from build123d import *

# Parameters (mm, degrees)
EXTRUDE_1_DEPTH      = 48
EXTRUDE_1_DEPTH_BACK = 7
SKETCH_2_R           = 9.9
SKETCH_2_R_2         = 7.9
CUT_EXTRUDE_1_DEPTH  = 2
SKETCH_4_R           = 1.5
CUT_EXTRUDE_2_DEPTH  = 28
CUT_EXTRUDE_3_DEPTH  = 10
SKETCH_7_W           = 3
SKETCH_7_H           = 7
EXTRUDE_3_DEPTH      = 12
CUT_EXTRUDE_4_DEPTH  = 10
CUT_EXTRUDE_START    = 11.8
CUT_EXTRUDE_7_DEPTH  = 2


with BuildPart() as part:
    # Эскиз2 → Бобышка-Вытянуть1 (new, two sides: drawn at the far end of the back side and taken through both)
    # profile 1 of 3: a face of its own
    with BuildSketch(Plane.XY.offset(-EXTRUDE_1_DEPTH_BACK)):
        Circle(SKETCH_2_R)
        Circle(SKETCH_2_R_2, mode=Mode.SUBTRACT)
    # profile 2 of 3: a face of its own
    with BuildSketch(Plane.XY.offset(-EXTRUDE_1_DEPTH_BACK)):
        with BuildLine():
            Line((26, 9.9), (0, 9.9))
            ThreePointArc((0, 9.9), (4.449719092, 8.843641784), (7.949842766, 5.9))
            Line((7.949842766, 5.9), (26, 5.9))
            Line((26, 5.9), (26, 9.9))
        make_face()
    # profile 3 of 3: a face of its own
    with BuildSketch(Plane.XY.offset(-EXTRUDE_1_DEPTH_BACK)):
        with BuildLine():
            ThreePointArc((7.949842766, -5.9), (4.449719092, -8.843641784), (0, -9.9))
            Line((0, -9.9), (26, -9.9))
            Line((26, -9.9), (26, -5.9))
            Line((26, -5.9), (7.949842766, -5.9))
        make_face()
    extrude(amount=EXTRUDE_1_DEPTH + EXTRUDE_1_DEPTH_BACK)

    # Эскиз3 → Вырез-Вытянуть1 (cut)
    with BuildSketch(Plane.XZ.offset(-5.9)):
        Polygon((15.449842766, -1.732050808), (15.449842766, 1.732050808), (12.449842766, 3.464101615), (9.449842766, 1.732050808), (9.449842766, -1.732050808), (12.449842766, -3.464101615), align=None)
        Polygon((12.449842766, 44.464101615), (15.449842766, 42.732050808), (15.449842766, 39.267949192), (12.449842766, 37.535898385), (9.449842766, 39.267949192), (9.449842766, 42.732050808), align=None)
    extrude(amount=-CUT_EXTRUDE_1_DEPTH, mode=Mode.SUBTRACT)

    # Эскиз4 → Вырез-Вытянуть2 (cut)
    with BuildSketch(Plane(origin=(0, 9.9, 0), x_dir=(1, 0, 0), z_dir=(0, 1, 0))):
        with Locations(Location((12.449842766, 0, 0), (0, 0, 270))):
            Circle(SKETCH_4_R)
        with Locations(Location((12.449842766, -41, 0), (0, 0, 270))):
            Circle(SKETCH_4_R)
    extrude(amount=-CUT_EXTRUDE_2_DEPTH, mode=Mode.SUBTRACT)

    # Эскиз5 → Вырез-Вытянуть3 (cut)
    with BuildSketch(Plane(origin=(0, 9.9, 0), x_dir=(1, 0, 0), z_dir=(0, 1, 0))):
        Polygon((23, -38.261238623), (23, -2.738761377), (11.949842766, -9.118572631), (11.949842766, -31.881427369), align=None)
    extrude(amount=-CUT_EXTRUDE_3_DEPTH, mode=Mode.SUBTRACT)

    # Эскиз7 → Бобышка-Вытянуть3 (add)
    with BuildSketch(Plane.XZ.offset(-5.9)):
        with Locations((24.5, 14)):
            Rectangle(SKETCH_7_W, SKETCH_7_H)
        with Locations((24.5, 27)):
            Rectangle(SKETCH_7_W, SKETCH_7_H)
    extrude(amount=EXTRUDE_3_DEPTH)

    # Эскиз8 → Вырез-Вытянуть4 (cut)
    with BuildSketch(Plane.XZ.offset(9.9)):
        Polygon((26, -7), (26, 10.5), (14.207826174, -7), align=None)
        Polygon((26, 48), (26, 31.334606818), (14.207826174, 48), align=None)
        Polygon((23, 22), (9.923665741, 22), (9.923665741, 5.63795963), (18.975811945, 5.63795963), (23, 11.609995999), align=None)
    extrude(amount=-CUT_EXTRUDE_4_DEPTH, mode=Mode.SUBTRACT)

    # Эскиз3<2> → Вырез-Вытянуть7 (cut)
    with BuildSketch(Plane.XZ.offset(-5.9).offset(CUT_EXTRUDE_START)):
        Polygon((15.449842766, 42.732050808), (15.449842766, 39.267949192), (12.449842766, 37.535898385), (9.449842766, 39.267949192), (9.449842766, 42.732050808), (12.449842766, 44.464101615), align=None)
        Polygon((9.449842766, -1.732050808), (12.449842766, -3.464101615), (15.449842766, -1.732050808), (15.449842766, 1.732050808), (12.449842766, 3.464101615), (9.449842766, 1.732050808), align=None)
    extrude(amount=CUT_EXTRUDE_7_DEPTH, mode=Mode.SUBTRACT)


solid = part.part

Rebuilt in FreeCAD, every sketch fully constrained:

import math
import FreeCAD as App
import Part
import Sketcher

V = App.Vector
Q = App.Units.Quantity


def add_polygon(sketch, points):
    """Adds a closed chain of lines whose ends are joined by coincident constraints."""
    first, n = sketch.GeometryCount, len(points)
    for a, b in zip(points, points[1:] + points[:1]):
        sketch.addGeometry(Part.LineSegment(App.Vector(*a, 0), App.Vector(*b, 0)), False)
    for i in range(n):
        sketch.addConstraint(Sketcher.Constraint("Coincident", first + i, 2, first + (i + 1) % n, 1))

doc = App.newDocument("Part")
body = doc.addObject("PartDesign::Body", "Body")

# Sketch on XY plane
sketch1 = doc.addObject("Sketcher::SketchObject", "Sketch")
body.addObject(sketch1)
sketch1.AttachmentSupport = (doc.XY_Plane, [""])
sketch1.MapMode = "FlatFace"
sketch1.addGeometry(Part.LineSegment(V(7.9, 5.9, 0), V(26, 5.9, 0)), False)
sketch1.addGeometry(Part.LineSegment(V(26, 5.9, 0), V(26, 9.9, 0)), False)
sketch1.addGeometry(Part.LineSegment(V(26, 9.9, 0), V(0, 9.9, 0)), False)
sketch1.addGeometry(Part.ArcOfCircle(Part.Circle(V(0, 0, 0), V(0, 0, 1), 9.9), math.radians(90), math.radians(270)), False)
sketch1.addGeometry(Part.LineSegment(V(0, -9.9, 0), V(26, -9.9, 0)), False)
sketch1.addGeometry(Part.LineSegment(V(26, -9.9, 0), V(26, -5.9, 0)), False)
sketch1.addGeometry(Part.LineSegment(V(26, -5.9, 0), V(7.9, -5.9, 0)), False)
sketch1.addGeometry(Part.ArcOfCircle(Part.Circle(V(0, 0, 0), V(0, 0, 1), 9.9), math.radians(-37), math.radians(37)), False)
sketch1.addGeometry(Part.Circle(V(0, 0, 0), V(0, 0, 1), 7.9), False)
sketch1.addConstraint(Sketcher.Constraint("Coincident", 0, 2, 1, 1))
sketch1.addConstraint(Sketcher.Constraint("Coincident", 1, 2, 2, 1))
sketch1.addConstraint(Sketcher.Constraint("Tangent", 2, 2, 3, 1))
sketch1.addConstraint(Sketcher.Constraint("Tangent", 3, 2, 4, 1))
sketch1.addConstraint(Sketcher.Constraint("Coincident", 4, 2, 5, 1))
sketch1.addConstraint(Sketcher.Constraint("Coincident", 5, 2, 6, 1))
sketch1.addConstraint(Sketcher.Constraint("Coincident", 6, 2, 7, 1))
sketch1.addConstraint(Sketcher.Constraint("Coincident", 7, 2, 0, 1))
sketch1.addConstraint(Sketcher.Constraint("Horizontal", 0))
sketch1.addConstraint(Sketcher.Constraint("Vertical", 1))
sketch1.addConstraint(Sketcher.Constraint("Horizontal", 2))
sketch1.addConstraint(Sketcher.Constraint("Horizontal", 4))
sketch1.addConstraint(Sketcher.Constraint("Vertical", 5))
sketch1.addConstraint(Sketcher.Constraint("Horizontal", 6))
sketch1.addConstraint(Sketcher.Constraint("Coincident", 3, 3, -1, 1))
sketch1.addConstraint(Sketcher.Constraint("Coincident", 7, 3, -1, 1))
sketch1.addConstraint(Sketcher.Constraint("Coincident", 8, 3, -1, 1))
sketch1.addConstraint(Sketcher.Constraint("Equal", 3, 7))
sketch1.addConstraint(Sketcher.Constraint("Symmetric", 0, 2, 5, 2, -1))
sketch1.addConstraint(Sketcher.Constraint("Diameter", 8, 15.8))
sketch1.addConstraint(Sketcher.Constraint("Radius", 3, 9.9))
sketch1.addConstraint(Sketcher.Constraint("DistanceX", 2, 2, 2, 1, 26.0))
sketch1.addConstraint(Sketcher.Constraint("DistanceY", 1, 1, 1, 2, 4.0))
pad1 = doc.addObject("PartDesign::Pad", "Pad")
body.addObject(pad1)
pad1.Profile = sketch1
pad1.Type = "TwoLengths"
pad1.Length = 48
pad1.Length2 = 7

# Sketch on XZ plane
sketch2 = doc.addObject("Sketcher::SketchObject", "Sketch001")
body.addObject(sketch2)
sketch2.AttachmentSupport = (doc.XZ_Plane, [""])
sketch2.MapMode = "FlatFace"
sketch2.AttachmentOffset = App.Placement(V(0, 0, -5.9), App.Rotation())
add_polygon(sketch2, [(15.4, -1.7), (15.4, 1.7), (12.4, 3.5), (9.4, 1.7), (9.4, -1.7), (12.4, -3.5)])  # lines 0-5
add_polygon(sketch2, [(15.4, 42.7), (12.4, 44.5), (9.4, 42.7), (9.4, 39.3), (12.4, 37.5), (15.4, 39.3)])  # lines 6-11
sketch2.addConstraint(Sketcher.Constraint("Vertical", 0))
sketch2.addConstraint(Sketcher.Constraint("Vertical", 3))
sketch2.addConstraint(Sketcher.Constraint("Vertical", 8))
sketch2.addConstraint(Sketcher.Constraint("Vertical", 11))
sketch2.addConstraint(Sketcher.Constraint("Symmetric", 1, 2, 4, 2, -1))
sketch2.addConstraint(Sketcher.Constraint("Parallel", 1, 4))
sketch2.addConstraint(Sketcher.Constraint("Parallel", 2, 5))
sketch2.addConstraint(Sketcher.Constraint("Parallel", 4, 6))
sketch2.addConstraint(Sketcher.Constraint("Parallel", 5, 7))
sketch2.addConstraint(Sketcher.Constraint("Parallel", 6, 9))
sketch2.addConstraint(Sketcher.Constraint("Parallel", 7, 10))
sketch2.addConstraint(Sketcher.Constraint("Horizontal", 0, 2, 2, 2))
sketch2.addConstraint(Sketcher.Constraint("Horizontal", 3, 2, 5, 2))
sketch2.addConstraint(Sketcher.Constraint("Horizontal", 8, 2, 10, 2))
sketch2.addConstraint(Sketcher.Constraint("Horizontal", 7, 2, 11, 2))
sketch2.addConstraint(Sketcher.Constraint("Vertical", 4, 2, 6, 2))
sketch2.addConstraint(Sketcher.Constraint("Vertical", 3, 2, 7, 2))
sketch2.addConstraint(Sketcher.Constraint("Equal", 3, 8))
sketch2.addConstraint(Sketcher.Constraint("Angle", 1, Q("150 deg")))
sketch2.addConstraint(Sketcher.Constraint("DistanceX", 1, 2, 0, 2, 3.0))
sketch2.addConstraint(Sketcher.Constraint("DistanceY", 1, 2, 6, 2, 41.0))
sketch2.addConstraint(Sketcher.Constraint("DistanceY", 0, 1, 0, 2, 3.464102))
sketch2.addConstraint(Sketcher.Constraint("DistanceX", -1, 1, 0, 2, 15.449843))
pocket1 = doc.addObject("PartDesign::Pocket", "Pocket")
body.addObject(pocket1)
pocket1.Profile = sketch2
pocket1.Length = 2

# Sketch on XZ plane
sketch3 = doc.addObject("Sketcher::SketchObject", "Sketch002")
body.addObject(sketch3)
sketch3.AttachmentSupport = (doc.XZ_Plane, [""])
sketch3.MapMode = "FlatFace"
sketch3.AttachmentOffset = App.Placement(V(0, 0, -9.9), App.Rotation())
sketch3.addGeometry(Part.Circle(V(12.4, 0, 0), V(0, 0, 1), 1.5), False)
sketch3.addGeometry(Part.Circle(V(12.4, 41, 0), V(0, 0, 1), 1.5), False)
sketch3.addConstraint(Sketcher.Constraint("Equal", 0, 1))
sketch3.addConstraint(Sketcher.Constraint("PointOnObject", 0, 3, -1))
sketch3.addConstraint(Sketcher.Constraint("Vertical", 0, 3, 1, 3))
sketch3.addConstraint(Sketcher.Constraint("Diameter", 0, 3.0))
sketch3.addConstraint(Sketcher.Constraint("DistanceY", -1, 1, 1, 3, 41.0))
sketch3.addConstraint(Sketcher.Constraint("DistanceX", -1, 1, 0, 3, 12.449843))
pocket2 = doc.addObject("PartDesign::Pocket", "Pocket001")
body.addObject(pocket2)
pocket2.Profile = sketch3
pocket2.Length = 28
pocket2.Reversed = True

# Sketch on XZ plane
sketch4 = doc.addObject("Sketcher::SketchObject", "Sketch003")
body.addObject(sketch4)
sketch4.AttachmentSupport = (doc.XZ_Plane, [""])
sketch4.MapMode = "FlatFace"
sketch4.AttachmentOffset = App.Placement(V(0, 0, -9.9), App.Rotation())
add_polygon(sketch4, [(23, 38), (23, 3), (12, 9), (12, 32)])  # lines 0-3
sketch4.addConstraint(Sketcher.Constraint("Vertical", 0))
sketch4.addConstraint(Sketcher.Constraint("Vertical", 2))
sketch4.addConstraint(Sketcher.Constraint("Equal", 1, 3))
sketch4.addConstraint(Sketcher.Constraint("Angle", 1, Q("150 deg")))
sketch4.addConstraint(Sketcher.Constraint("DistanceX", -1, 1, 0, 2, 23.0))
sketch4.addConstraint(Sketcher.Constraint("DistanceY", 0, 2, 0, 1, 35.522477))
sketch4.addConstraint(Sketcher.Constraint("DistanceY", 2, 1, 2, 2, 22.762855))
sketch4.addConstraint(Sketcher.Constraint("DistanceY", -1, 1, 0, 2, 2.738761))
pocket3 = doc.addObject("PartDesign::Pocket", "Pocket002")
body.addObject(pocket3)
pocket3.Profile = sketch4
pocket3.Length = 10
pocket3.Reversed = True

# Sketch on XZ plane
sketch5 = doc.addObject("Sketcher::SketchObject", "Sketch004")
body.addObject(sketch5)
sketch5.AttachmentSupport = (doc.XZ_Plane, [""])
sketch5.MapMode = "FlatFace"
sketch5.AttachmentOffset = App.Placement(V(0, 0, -5.9), App.Rotation())
add_polygon(sketch5, [(23, 17.5), (23, 10.5), (26, 10.5), (26, 17.5)])  # lines 0-3
add_polygon(sketch5, [(23, 30.5), (23, 23.5), (26, 23.5), (26, 30.5)])  # lines 4-7
sketch5.addConstraint(Sketcher.Constraint("Vertical", 0))
sketch5.addConstraint(Sketcher.Constraint("Horizontal", 1))
sketch5.addConstraint(Sketcher.Constraint("Vertical", 2))
sketch5.addConstraint(Sketcher.Constraint("Horizontal", 3))
sketch5.addConstraint(Sketcher.Constraint("Vertical", 4))
sketch5.addConstraint(Sketcher.Constraint("Horizontal", 5))
sketch5.addConstraint(Sketcher.Constraint("Vertical", 6))
sketch5.addConstraint(Sketcher.Constraint("Horizontal", 7))
sketch5.addConstraint(Sketcher.Constraint("Vertical", 3, 2, 4, 2))
sketch5.addConstraint(Sketcher.Constraint("Vertical", 2, 2, 5, 2))
sketch5.addConstraint(Sketcher.Constraint("Equal", 2, 4))
sketch5.addConstraint(Sketcher.Constraint("DistanceX", 1, 1, 1, 2, 3.0))
sketch5.addConstraint(Sketcher.Constraint("DistanceY", 0, 2, 0, 1, 7.0))
sketch5.addConstraint(Sketcher.Constraint("DistanceX", -1, 1, 0, 2, 23.0))
sketch5.addConstraint(Sketcher.Constraint("DistanceY", 3, 2, 4, 2, 6.0))
sketch5.addConstraint(Sketcher.Constraint("DistanceY", -1, 1, 0, 2, 10.5))
pad2 = doc.addObject("PartDesign::Pad", "Pad001")
body.addObject(pad2)
pad2.Profile = sketch5
pad2.Length = 12

# Sketch on XZ plane
sketch6 = doc.addObject("Sketcher::SketchObject", "Sketch005")
body.addObject(sketch6)
sketch6.AttachmentSupport = (doc.XZ_Plane, [""])
sketch6.MapMode = "FlatFace"
sketch6.AttachmentOffset = App.Placement(V(0, 0, 9.9), App.Rotation())
add_polygon(sketch6, [(26, -7), (26, 10), (14, -7)])  # lines 0-2
add_polygon(sketch6, [(26, 31), (26, 48), (14, 48)])  # lines 3-5
add_polygon(sketch6, [(23, 22), (10, 22), (10, 6), (19, 6), (23, 12)])  # lines 6-10
sketch6.addConstraint(Sketcher.Constraint("Vertical", 0))
sketch6.addConstraint(Sketcher.Constraint("Horizontal", 2))
sketch6.addConstraint(Sketcher.Constraint("Vertical", 3))
sketch6.addConstraint(Sketcher.Constraint("Horizontal", 4))
sketch6.addConstraint(Sketcher.Constraint("Horizontal", 6))
sketch6.addConstraint(Sketcher.Constraint("Vertical", 7))
sketch6.addConstraint(Sketcher.Constraint("Horizontal", 8))
sketch6.addConstraint(Sketcher.Constraint("Vertical", 10))
sketch6.addConstraint(Sketcher.Constraint("Parallel", 1, 9))
sketch6.addConstraint(Sketcher.Constraint("Vertical", 2, 2, 3, 2))
sketch6.addConstraint(Sketcher.Constraint("Vertical", 1, 2, 4, 2))
sketch6.addConstraint(Sketcher.Constraint("DistanceY", 0, 1, 0, 2, 17.5))
sketch6.addConstraint(Sketcher.Constraint("DistanceX", -1, 1, 0, 2, 26.0))
sketch6.addConstraint(Sketcher.Constraint("DistanceY", 1, 2, -1, 1, 7.0))
sketch6.addConstraint(Sketcher.Constraint("DistanceY", -1, 1, 3, 2, 48.0))
sketch6.addConstraint(Sketcher.Constraint("DistanceY", -1, 1, 6, 2, 22.0))
sketch6.addConstraint(Sketcher.Constraint("DistanceX", -1, 1, 9, 2, 23.0))
sketch6.addConstraint(Sketcher.Constraint("DistanceY", 7, 2, 7, 1, 16.36204))
sketch6.addConstraint(Sketcher.Constraint("Distance", 1, 21.10226))
sketch6.addConstraint(Sketcher.Constraint("Distance", 9, 7.201341))
sketch6.addConstraint(Sketcher.Constraint("DistanceX", 6, 2, 6, 1, 13.076334))
sketch6.addConstraint(Sketcher.Constraint("DistanceY", 3, 1, 3, 2, 16.665393))
pocket4 = doc.addObject("PartDesign::Pocket", "Pocket003")
body.addObject(pocket4)
pocket4.Profile = sketch6
pocket4.Length = 10

# Sketch on XZ plane
sketch7 = doc.addObject("Sketcher::SketchObject", "Sketch006")
body.addObject(sketch7)
sketch7.AttachmentSupport = (doc.XZ_Plane, [""])
sketch7.MapMode = "FlatFace"
sketch7.AttachmentOffset = App.Placement(V(0, 0, 5.9), App.Rotation())
add_polygon(sketch7, [(15.4, 39.3), (15.4, 42.7), (12.4, 44.5), (9.4, 42.7), (9.4, 39.3), (12.4, 37.5)])  # lines 0-5
add_polygon(sketch7, [(9.4, -1.7), (12.4, -3.5), (15.4, -1.7), (15.4, 1.7), (12.4, 3.5), (9.4, 1.7)])  # lines 6-11
sketch7.addConstraint(Sketcher.Constraint("Vertical", 0))
sketch7.addConstraint(Sketcher.Constraint("Vertical", 3))
sketch7.addConstraint(Sketcher.Constraint("Vertical", 8))
sketch7.addConstraint(Sketcher.Constraint("Vertical", 11))
sketch7.addConstraint(Sketcher.Constraint("Symmetric", 6, 2, 9, 2, -1))
sketch7.addConstraint(Sketcher.Constraint("Parallel", 1, 4))
sketch7.addConstraint(Sketcher.Constraint("Parallel", 2, 5))
sketch7.addConstraint(Sketcher.Constraint("Parallel", 4, 6))
sketch7.addConstraint(Sketcher.Constraint("Parallel", 5, 7))
sketch7.addConstraint(Sketcher.Constraint("Parallel", 6, 9))
sketch7.addConstraint(Sketcher.Constraint("Parallel", 7, 10))
sketch7.addConstraint(Sketcher.Constraint("Horizontal", 0, 2, 2, 2))
sketch7.addConstraint(Sketcher.Constraint("Horizontal", 3, 2, 5, 2))
sketch7.addConstraint(Sketcher.Constraint("Horizontal", 8, 2, 10, 2))
sketch7.addConstraint(Sketcher.Constraint("Horizontal", 7, 2, 11, 2))
sketch7.addConstraint(Sketcher.Constraint("Vertical", 4, 2, 6, 2))
sketch7.addConstraint(Sketcher.Constraint("Vertical", 5, 2, 7, 2))
sketch7.addConstraint(Sketcher.Constraint("Equal", 3, 8))
sketch7.addConstraint(Sketcher.Constraint("Angle", 1, Q("150 deg")))
sketch7.addConstraint(Sketcher.Constraint("DistanceX", 1, 2, 0, 2, 3.0))
sketch7.addConstraint(Sketcher.Constraint("DistanceY", 6, 2, 4, 2, 41.0))
sketch7.addConstraint(Sketcher.Constraint("DistanceY", 0, 1, 0, 2, 3.464102))
sketch7.addConstraint(Sketcher.Constraint("DistanceX", -1, 1, 0, 2, 15.449843))
pocket5 = doc.addObject("PartDesign::Pocket", "Pocket004")
body.addObject(pocket5)
pocket5.Profile = sketch7
pocket5.Length = 2
pocket5.Reversed = True

doc.recompute()
